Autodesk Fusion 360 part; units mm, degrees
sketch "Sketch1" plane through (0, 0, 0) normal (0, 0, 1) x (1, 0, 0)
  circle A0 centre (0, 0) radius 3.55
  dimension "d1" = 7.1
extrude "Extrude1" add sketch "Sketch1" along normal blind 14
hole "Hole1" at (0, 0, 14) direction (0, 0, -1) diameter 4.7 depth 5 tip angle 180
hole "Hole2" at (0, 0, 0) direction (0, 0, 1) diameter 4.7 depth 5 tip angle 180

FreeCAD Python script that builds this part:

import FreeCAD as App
import Part
import Sketcher

V = App.Vector

doc = App.newDocument("Part")
body = doc.addObject("PartDesign::Body", "Body")

sketch1 = body.newObject("Sketcher::SketchObject", "Sketch")
sketch1.AttachmentSupport = (doc.getObject("XY_Plane"), [""])
sketch1.MapMode = "FlatFace"
sketch1.addGeometry(Part.Circle(V(0, 0, 0), V(0, 0, 1), 3.5), False)
sketch1.addConstraint(Sketcher.Constraint("Coincident", 0, 3, -1, 1))
sketch1.addConstraint(Sketcher.Constraint("Diameter", 0, 7.1))
pad1 = body.newObject("PartDesign::Pad", "Pad")
pad1.Profile = sketch1
pad1.Length = 14

sketch2 = body.newObject("Sketcher::SketchObject", "Sketch001")
sketch2.AttachmentSupport = (doc.getObject("XY_Plane"), [""])
sketch2.MapMode = "FlatFace"
sketch2.AttachmentOffset = App.Placement(V(0, 0, 14), App.Rotation())
sketch2.addGeometry(Part.Circle(V(0, 0, 0), V(0, 0, 1), 2.4), False)
sketch2.addConstraint(Sketcher.Constraint("Coincident", 0, 3, -1, 1))
sketch2.addConstraint(Sketcher.Constraint("Diameter", 0, 4.7))
doc.recompute()
hole = body.newObject("PartDesign::Hole", "Hole")
hole.Profile = sketch2
hole.ThreadType = "None"
hole.Diameter = 4.7
hole.DepthType = "Dimension"
hole.Depth = 5
hole.DrillPoint = "Flat"

sketch3 = body.newObject("Sketcher::SketchObject", "Sketch002")
sketch3.AttachmentSupport = (doc.getObject("XY_Plane"), [""])
sketch3.MapMode = "FlatFace"
sketch3.addGeometry(Part.Circle(V(0, 0, 0), V(0, 0, 1), 2.4), False)
sketch3.addConstraint(Sketcher.Constraint("Coincident", 0, 3, -1, 1))
sketch3.addConstraint(Sketcher.Constraint("Diameter", 0, 4.7))
doc.recompute()
hole2 = body.newObject("PartDesign::Hole", "Hole001")
hole2.Profile = sketch3
hole2.ThreadType = "None"
hole2.Diameter = 4.7
hole2.DepthType = "Dimension"
hole2.Depth = 5
hole2.DrillPoint = "Flat"
hole2.Reversed = True

doc.recompute()
